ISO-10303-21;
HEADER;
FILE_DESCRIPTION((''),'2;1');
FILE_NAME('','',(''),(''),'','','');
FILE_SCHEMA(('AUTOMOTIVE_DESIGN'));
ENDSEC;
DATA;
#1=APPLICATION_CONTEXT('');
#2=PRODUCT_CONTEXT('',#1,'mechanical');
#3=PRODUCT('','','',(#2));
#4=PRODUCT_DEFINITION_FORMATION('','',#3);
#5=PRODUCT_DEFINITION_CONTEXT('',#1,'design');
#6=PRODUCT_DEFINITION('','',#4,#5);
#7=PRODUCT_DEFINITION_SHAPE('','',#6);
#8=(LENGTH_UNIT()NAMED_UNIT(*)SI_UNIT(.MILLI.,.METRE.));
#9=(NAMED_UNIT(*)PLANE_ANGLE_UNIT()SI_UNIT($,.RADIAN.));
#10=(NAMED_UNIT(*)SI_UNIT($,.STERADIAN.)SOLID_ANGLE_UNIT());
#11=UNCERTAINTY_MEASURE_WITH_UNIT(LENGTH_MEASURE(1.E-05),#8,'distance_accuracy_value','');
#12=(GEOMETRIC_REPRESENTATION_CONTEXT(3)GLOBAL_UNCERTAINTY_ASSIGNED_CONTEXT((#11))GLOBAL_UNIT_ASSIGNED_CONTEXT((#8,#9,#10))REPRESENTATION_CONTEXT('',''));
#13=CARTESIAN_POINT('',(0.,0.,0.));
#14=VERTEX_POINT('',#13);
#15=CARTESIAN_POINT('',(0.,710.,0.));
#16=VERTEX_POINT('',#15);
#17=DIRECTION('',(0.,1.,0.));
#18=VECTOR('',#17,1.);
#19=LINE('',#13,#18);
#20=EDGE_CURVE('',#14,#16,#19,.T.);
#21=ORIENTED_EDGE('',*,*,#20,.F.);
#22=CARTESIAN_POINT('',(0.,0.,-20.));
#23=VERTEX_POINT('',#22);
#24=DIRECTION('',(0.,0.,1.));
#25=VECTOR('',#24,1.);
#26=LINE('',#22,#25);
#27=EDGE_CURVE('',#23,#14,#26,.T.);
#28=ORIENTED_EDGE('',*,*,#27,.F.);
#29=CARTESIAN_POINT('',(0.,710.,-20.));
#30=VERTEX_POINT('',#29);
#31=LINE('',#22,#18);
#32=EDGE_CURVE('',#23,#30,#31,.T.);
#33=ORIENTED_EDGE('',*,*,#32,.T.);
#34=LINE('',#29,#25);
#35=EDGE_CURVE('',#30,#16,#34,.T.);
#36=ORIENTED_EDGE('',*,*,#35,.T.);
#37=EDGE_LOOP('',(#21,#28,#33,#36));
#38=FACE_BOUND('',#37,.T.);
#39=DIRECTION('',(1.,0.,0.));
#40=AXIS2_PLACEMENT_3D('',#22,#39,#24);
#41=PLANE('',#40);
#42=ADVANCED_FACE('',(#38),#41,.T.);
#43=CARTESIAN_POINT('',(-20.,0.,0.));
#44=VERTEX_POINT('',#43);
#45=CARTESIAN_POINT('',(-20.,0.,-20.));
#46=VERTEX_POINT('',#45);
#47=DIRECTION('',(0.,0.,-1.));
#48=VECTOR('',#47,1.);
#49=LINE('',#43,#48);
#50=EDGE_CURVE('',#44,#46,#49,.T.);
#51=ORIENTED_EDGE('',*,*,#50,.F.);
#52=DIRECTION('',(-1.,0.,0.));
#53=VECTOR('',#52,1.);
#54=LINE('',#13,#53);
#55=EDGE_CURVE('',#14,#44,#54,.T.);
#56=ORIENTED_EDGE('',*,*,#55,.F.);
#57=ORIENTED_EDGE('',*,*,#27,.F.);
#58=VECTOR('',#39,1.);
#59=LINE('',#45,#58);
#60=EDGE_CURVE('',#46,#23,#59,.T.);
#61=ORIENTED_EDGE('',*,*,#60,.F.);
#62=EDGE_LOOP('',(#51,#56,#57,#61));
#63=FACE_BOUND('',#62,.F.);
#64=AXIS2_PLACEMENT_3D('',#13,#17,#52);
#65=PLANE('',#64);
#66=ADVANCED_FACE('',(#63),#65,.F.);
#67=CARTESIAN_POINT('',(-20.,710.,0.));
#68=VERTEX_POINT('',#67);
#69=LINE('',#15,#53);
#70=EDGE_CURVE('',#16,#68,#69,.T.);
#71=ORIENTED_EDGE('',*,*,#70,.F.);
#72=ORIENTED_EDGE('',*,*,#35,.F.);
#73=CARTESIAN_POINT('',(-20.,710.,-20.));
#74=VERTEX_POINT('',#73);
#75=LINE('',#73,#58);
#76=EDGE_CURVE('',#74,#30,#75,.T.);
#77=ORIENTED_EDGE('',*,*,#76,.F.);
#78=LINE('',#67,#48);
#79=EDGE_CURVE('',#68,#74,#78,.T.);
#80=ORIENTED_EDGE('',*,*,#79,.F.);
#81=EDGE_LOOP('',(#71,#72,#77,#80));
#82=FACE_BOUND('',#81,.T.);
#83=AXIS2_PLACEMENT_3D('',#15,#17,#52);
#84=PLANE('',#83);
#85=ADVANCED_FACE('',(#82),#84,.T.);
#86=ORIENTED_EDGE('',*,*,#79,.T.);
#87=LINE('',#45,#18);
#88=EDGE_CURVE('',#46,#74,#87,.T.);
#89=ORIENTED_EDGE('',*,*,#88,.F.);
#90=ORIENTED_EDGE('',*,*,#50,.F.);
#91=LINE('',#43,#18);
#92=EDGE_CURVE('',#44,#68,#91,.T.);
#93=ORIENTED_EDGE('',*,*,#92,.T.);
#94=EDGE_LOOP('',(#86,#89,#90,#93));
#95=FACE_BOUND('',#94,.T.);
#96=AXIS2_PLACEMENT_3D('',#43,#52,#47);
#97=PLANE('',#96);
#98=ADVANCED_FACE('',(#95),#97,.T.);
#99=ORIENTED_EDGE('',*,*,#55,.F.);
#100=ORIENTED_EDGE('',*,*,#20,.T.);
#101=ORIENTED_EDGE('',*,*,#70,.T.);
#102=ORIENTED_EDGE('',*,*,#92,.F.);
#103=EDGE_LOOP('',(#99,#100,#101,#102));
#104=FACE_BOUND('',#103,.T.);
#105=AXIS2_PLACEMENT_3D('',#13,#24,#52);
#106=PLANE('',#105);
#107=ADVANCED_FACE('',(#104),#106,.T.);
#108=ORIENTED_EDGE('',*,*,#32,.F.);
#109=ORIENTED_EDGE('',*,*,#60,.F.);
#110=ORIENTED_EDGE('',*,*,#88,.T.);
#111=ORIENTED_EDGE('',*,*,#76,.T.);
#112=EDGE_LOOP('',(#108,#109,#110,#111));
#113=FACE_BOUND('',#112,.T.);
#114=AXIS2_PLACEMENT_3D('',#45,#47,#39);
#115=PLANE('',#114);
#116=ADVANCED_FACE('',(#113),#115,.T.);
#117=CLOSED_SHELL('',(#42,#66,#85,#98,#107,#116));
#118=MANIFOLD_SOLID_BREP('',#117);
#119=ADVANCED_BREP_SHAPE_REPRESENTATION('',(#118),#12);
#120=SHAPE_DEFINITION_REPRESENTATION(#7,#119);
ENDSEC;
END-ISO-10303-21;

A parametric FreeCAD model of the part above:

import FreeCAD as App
import Part
import Sketcher
Q = App.Units.Quantity

doc = App.newDocument("Part")
params = doc.addObject("Spreadsheet::Sheet", "Params")
for row, (alias, value) in enumerate([
    ("sketch1_width", "20 mm"),
    ("pad1_length", "710 mm"),
], start=1):
    params.set(f"A{row}", alias)
    params.set(f"B{row}", "=" + value)
    params.setAlias(f"B{row}", alias)

body = doc.addObject("PartDesign::Body", "Body")

# Sketch on XZ plane
sketch1 = doc.addObject("Sketcher::SketchObject", "Sketch")
body.addObject(sketch1)
sketch1.AttachmentSupport = (doc.XZ_Plane, [""])
sketch1.MapMode = "FlatFace"
sketch1.addGeometry(Part.LineSegment(App.Vector(-20, 0, 0), App.Vector(0, 0, 0)), False)
sketch1.addGeometry(Part.LineSegment(App.Vector(0, 0, 0), App.Vector(0, -20, 0)), False)
sketch1.addGeometry(Part.LineSegment(App.Vector(0, -20, 0), App.Vector(-20, -20, 0)), False)
sketch1.addGeometry(Part.LineSegment(App.Vector(-20, -20, 0), App.Vector(-20, 0, 0)), False)
sketch1.addConstraint(Sketcher.Constraint("Coincident", 0, 2, 1, 1))
sketch1.addConstraint(Sketcher.Constraint("Coincident", 1, 2, 2, 1))
sketch1.addConstraint(Sketcher.Constraint("Coincident", 2, 2, 3, 1))
sketch1.addConstraint(Sketcher.Constraint("Coincident", 3, 2, 0, 1))
sketch1.addConstraint(Sketcher.Constraint("Horizontal", 0))
sketch1.addConstraint(Sketcher.Constraint("Vertical", 1))
sketch1.addConstraint(Sketcher.Constraint("Horizontal", 2))
sketch1.addConstraint(Sketcher.Constraint("Vertical", 3))
sketch1.addConstraint(Sketcher.Constraint("Coincident", 0, 2, -1, 1))
sketch1.addConstraint(Sketcher.Constraint("Equal", 2, 1))
sketch1.addConstraint(Sketcher.Constraint("DistanceX", 0, 1, 0, 2, Q("20 mm")))
sketch1.setExpression("Constraints[10]", "Params.sketch1_width")
pad1 = doc.addObject("PartDesign::Pad", "Pad")
body.addObject(pad1)
pad1.Profile = sketch1
pad1.setExpression("Length", "Params.pad1_length")
pad1.Reversed = True

doc.recompute()
